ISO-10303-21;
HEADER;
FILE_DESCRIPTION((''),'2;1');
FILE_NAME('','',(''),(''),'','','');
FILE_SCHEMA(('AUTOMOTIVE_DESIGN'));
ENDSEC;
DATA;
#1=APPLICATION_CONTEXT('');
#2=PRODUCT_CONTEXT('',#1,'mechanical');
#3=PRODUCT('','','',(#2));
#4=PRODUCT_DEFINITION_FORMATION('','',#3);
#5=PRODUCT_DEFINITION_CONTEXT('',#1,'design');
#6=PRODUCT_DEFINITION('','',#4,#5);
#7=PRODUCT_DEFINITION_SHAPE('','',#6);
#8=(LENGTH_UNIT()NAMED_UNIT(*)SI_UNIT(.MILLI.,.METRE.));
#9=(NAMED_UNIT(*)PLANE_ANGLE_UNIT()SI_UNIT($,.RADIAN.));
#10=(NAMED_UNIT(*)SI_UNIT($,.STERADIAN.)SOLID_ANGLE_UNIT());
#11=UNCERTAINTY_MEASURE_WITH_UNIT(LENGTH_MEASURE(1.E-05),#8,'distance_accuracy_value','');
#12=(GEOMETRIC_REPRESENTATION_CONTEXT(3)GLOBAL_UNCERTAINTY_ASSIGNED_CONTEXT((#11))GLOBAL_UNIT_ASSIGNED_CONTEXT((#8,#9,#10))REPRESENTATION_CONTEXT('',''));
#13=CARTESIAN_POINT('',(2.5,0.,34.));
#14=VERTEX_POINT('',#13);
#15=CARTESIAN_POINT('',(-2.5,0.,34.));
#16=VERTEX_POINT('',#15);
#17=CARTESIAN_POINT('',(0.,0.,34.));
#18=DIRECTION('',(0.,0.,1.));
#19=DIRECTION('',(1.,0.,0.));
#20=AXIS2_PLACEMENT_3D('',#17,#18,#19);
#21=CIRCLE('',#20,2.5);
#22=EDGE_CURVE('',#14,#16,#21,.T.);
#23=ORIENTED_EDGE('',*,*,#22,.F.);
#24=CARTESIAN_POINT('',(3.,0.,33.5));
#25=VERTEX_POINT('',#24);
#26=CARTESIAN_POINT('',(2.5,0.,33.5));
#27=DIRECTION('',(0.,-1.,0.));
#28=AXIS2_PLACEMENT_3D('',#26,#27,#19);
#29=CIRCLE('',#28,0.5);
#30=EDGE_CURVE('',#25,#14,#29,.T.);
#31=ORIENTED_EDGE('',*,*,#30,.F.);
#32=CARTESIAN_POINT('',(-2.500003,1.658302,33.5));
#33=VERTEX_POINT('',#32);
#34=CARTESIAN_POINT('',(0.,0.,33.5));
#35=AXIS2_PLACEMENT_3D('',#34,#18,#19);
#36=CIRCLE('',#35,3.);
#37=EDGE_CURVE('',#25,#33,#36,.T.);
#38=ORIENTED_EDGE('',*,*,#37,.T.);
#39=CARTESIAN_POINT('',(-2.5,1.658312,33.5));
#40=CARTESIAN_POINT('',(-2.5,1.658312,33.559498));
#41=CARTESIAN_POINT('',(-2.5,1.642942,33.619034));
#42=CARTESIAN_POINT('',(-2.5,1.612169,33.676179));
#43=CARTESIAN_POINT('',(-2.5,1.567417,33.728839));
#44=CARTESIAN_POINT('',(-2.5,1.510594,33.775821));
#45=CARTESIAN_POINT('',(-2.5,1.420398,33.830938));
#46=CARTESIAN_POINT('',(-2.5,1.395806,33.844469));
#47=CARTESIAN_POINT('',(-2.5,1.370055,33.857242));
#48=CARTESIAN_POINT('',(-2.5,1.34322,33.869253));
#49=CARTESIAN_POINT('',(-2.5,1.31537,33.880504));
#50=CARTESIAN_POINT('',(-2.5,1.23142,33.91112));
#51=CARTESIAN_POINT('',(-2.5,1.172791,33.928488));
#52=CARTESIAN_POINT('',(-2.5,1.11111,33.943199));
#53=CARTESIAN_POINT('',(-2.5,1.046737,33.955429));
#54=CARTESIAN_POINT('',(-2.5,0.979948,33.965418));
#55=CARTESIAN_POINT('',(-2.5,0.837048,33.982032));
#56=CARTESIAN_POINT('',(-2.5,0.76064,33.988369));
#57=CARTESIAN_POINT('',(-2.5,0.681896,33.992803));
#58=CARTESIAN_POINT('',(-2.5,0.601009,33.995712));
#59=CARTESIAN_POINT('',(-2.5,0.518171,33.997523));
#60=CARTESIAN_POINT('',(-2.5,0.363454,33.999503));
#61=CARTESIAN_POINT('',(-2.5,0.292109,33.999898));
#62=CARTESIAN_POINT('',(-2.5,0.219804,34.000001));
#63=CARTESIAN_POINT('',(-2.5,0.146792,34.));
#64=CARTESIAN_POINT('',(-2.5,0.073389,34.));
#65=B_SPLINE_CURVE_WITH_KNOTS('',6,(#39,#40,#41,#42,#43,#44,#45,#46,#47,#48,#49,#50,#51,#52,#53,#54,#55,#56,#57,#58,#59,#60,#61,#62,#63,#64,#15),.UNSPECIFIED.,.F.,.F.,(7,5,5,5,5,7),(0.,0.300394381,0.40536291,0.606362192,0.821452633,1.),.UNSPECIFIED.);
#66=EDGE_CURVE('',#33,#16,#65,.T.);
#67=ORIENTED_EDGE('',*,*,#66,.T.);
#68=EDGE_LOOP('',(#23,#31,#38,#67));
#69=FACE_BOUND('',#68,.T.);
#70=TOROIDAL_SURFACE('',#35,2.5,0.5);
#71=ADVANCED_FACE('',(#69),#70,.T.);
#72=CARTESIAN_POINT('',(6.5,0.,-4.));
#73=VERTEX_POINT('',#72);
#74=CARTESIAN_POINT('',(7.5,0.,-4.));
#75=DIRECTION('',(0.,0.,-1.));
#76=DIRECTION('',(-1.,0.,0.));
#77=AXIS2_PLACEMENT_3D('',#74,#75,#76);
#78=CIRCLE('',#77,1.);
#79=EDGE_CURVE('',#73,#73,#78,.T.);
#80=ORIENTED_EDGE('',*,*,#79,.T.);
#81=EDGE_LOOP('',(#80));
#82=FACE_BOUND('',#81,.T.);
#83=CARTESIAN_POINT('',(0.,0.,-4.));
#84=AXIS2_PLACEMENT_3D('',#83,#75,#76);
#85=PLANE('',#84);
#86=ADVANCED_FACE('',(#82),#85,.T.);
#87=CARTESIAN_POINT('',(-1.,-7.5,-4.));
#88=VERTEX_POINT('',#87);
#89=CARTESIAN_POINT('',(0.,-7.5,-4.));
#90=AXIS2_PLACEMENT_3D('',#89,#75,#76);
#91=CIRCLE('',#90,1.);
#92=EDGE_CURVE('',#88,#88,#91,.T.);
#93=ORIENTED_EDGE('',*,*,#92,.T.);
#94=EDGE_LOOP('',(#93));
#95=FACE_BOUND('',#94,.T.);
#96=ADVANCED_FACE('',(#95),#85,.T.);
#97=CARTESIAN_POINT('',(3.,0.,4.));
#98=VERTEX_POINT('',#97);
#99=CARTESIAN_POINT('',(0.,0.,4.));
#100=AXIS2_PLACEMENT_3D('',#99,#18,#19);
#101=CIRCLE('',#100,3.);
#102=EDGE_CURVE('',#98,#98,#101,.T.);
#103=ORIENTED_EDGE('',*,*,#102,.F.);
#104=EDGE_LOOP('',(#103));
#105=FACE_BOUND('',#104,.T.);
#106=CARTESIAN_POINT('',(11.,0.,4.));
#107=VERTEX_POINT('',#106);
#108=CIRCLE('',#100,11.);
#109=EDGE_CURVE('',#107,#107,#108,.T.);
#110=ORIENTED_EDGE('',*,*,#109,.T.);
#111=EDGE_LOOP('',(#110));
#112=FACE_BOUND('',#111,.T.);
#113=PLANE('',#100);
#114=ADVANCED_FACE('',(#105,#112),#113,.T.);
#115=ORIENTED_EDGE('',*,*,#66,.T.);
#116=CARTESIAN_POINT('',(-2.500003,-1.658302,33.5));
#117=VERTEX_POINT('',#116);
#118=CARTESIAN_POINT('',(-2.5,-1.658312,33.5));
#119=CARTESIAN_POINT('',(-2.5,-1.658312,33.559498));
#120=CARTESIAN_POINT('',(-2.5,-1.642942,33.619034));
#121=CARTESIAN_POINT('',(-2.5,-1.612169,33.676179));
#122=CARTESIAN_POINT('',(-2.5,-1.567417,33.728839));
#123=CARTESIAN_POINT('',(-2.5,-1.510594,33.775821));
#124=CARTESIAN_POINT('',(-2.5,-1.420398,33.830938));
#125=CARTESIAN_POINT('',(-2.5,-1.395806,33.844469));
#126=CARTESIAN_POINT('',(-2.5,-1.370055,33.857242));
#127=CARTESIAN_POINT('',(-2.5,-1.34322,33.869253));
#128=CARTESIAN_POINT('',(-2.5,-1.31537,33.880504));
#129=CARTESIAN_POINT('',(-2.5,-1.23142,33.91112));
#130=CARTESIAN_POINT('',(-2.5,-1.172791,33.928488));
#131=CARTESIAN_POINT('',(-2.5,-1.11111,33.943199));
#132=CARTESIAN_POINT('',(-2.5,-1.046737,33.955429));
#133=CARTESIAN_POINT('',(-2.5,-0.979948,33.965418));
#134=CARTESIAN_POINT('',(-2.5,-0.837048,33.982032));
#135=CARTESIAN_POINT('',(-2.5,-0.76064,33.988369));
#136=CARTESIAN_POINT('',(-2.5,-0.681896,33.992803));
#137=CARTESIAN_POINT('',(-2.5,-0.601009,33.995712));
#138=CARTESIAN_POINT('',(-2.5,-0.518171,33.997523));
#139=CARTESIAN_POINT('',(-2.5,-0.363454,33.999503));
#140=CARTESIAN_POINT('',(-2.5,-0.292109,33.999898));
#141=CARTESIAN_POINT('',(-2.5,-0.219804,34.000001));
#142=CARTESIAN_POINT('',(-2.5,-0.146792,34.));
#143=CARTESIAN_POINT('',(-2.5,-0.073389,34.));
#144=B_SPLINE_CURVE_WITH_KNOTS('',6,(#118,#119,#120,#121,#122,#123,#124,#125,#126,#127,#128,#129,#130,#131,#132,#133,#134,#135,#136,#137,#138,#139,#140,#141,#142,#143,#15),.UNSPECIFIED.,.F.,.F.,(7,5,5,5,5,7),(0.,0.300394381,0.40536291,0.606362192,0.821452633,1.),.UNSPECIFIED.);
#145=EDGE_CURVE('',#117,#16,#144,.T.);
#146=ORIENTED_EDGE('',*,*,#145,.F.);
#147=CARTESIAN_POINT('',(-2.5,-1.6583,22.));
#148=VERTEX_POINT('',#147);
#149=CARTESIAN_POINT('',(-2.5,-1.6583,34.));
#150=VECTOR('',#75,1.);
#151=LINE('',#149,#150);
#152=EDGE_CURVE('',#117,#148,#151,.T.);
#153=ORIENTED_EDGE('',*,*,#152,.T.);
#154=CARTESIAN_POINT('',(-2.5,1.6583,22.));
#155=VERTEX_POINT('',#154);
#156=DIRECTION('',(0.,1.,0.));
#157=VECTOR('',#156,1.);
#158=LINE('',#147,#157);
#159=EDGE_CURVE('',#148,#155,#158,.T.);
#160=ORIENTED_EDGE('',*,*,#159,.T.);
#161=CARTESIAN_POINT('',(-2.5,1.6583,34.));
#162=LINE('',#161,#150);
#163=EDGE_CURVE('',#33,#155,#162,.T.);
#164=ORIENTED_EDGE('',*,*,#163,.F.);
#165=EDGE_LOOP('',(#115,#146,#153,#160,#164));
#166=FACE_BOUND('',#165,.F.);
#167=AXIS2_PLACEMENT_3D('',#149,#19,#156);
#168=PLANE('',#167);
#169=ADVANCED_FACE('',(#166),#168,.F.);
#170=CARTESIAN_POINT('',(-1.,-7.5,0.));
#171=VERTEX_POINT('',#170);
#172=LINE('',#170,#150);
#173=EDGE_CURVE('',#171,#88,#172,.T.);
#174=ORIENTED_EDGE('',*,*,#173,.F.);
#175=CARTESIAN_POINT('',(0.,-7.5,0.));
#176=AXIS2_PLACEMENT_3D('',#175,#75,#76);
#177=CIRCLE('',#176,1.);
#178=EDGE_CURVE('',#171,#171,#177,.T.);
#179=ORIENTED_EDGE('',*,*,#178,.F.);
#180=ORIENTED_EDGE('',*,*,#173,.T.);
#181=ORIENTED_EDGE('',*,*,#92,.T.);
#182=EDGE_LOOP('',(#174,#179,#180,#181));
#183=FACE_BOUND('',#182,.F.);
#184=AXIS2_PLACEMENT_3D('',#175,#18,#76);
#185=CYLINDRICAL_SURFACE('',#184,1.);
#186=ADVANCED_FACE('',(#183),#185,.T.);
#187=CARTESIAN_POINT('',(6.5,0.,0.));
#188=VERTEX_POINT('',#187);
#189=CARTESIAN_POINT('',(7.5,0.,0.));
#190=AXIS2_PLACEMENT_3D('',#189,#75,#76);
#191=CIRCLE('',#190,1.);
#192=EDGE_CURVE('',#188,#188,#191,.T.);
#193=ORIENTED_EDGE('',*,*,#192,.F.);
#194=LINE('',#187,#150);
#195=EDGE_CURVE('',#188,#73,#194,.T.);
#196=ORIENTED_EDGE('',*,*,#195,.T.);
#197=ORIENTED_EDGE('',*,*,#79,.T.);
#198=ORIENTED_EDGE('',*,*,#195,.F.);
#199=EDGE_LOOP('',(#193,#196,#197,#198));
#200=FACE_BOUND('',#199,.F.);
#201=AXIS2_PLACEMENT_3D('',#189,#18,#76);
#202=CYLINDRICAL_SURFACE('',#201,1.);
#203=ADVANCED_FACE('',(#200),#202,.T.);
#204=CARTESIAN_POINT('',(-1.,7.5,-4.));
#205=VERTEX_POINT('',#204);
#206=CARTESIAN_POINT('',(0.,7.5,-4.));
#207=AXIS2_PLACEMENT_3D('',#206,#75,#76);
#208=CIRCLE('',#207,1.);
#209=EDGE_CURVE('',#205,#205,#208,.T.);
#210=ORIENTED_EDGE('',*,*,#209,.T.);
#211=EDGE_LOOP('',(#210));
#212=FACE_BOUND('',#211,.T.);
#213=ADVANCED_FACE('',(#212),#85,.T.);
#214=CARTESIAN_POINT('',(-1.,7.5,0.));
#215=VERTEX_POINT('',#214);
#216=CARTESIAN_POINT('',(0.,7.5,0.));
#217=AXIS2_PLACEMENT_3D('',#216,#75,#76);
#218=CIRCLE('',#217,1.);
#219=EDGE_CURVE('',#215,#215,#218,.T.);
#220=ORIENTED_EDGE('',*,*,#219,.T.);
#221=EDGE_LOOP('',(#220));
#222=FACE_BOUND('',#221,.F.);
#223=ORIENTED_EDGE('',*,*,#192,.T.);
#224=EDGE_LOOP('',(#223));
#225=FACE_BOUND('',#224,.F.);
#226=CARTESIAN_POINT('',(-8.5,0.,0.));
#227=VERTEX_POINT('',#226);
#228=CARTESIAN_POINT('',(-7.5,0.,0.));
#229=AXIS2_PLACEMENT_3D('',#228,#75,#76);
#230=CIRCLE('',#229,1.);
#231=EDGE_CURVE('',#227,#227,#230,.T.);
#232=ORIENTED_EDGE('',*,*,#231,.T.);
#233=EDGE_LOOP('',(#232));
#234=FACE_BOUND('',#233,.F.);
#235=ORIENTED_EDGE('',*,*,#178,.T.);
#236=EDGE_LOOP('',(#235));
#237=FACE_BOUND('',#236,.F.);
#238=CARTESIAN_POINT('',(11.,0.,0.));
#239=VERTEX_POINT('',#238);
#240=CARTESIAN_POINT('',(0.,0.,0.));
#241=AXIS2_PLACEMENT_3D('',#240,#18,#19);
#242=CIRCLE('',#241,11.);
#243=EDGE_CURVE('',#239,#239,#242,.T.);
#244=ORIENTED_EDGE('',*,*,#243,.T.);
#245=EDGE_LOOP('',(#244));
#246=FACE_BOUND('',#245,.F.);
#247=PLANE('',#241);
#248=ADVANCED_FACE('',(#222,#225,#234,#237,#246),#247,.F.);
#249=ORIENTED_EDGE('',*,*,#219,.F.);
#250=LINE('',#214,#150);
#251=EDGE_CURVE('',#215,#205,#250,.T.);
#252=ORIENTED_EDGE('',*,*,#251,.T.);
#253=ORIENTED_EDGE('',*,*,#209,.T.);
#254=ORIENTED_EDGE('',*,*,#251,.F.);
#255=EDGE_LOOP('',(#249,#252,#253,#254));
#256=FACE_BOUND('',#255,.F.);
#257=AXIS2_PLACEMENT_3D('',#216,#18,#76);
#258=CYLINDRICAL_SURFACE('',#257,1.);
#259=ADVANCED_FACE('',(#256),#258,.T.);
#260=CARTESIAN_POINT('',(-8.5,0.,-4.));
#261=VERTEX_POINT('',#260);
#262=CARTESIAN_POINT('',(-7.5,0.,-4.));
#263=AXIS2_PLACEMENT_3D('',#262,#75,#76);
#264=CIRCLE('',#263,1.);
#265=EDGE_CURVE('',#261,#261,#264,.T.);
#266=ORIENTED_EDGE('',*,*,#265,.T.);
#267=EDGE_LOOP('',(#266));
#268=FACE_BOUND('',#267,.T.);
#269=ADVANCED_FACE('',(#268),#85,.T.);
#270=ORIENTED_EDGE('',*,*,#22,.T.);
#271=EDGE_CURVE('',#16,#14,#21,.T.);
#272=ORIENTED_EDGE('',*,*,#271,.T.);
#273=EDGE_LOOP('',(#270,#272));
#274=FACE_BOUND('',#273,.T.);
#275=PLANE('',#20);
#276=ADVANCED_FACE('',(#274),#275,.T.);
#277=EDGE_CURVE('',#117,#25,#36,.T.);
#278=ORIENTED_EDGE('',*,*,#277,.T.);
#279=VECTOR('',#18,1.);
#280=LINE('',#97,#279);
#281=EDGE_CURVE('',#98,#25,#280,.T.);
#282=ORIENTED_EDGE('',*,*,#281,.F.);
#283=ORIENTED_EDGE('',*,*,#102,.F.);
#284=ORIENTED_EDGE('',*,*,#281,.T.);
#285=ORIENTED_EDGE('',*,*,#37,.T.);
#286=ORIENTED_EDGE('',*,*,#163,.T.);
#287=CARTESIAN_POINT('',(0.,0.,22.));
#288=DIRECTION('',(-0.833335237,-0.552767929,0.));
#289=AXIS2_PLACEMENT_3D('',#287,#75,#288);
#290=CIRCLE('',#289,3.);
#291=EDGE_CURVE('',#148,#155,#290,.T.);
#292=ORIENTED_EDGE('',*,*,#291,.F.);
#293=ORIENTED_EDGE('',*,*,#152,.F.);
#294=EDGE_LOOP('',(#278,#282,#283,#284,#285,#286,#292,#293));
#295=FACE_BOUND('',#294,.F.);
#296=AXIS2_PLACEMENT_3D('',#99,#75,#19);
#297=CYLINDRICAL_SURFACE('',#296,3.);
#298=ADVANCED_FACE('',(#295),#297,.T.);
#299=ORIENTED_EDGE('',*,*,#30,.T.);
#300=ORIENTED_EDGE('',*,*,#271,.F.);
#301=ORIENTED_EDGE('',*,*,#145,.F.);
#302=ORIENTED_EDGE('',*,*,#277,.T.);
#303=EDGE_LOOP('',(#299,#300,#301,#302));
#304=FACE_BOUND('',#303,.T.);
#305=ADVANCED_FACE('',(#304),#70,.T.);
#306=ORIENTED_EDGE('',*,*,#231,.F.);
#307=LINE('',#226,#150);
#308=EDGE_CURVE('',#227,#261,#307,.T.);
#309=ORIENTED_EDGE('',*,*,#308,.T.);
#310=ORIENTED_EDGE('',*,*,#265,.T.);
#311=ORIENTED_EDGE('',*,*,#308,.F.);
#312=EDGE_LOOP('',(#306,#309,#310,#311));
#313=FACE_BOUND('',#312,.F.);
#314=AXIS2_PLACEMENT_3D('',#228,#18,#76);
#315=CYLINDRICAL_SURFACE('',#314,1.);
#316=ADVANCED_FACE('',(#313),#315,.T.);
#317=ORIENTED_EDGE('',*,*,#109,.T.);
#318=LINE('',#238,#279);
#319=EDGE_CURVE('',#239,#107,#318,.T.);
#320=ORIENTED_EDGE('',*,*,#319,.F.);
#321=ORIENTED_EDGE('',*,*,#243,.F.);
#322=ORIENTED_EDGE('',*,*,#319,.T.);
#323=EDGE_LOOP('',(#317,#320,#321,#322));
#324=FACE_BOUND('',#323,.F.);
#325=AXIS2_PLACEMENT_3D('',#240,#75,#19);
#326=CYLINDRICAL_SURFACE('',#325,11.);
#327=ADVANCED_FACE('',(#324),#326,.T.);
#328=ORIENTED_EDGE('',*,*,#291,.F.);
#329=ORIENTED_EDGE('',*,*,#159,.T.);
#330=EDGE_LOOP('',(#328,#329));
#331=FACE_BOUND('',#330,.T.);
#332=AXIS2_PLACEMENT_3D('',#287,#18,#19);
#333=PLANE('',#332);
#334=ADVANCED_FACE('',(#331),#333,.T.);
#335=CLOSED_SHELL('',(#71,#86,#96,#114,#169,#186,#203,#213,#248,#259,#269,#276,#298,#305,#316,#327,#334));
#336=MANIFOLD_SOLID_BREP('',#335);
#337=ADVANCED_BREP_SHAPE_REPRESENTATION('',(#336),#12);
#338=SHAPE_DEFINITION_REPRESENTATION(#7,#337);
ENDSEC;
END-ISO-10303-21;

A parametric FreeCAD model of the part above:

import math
import FreeCAD as App
import Part
import Sketcher


def edges_at(feature, points):
    """Names of the edges that pass closest to the given points."""
    edges = feature.Shape.Edges
    near = lambda p: min(range(len(edges)), key=lambda i: edges[i].distToShape(Part.Vertex(*p))[0])
    return sorted({f"Edge{near(p) + 1}" for p in points})

doc = App.newDocument("Part")
body = doc.addObject("PartDesign::Body", "Body")

# Sketch on XY plane
sketch1 = body.newObject("Sketcher::SketchObject", "Sketch")
sketch1.AttachmentSupport = (doc.getObject("XY_Plane"), [""])
sketch1.MapMode = "FlatFace"
sketch1.addGeometry(Part.Circle(App.Vector(0, 0, 0), App.Vector(0, 0, 1), 11), False)
sketch1.addConstraint([
    Sketcher.Constraint("Coincident", 0, 3, -1, 1),
    Sketcher.Constraint("Diameter", 0, 22.0),
])
pad1 = body.newObject("PartDesign::Pad", "Pad")
pad1.Profile = sketch1
pad1.Length = 4

# Sketch on XY plane
sketch2 = body.newObject("Sketcher::SketchObject", "Sketch001")
sketch2.AttachmentSupport = (doc.getObject("XY_Plane"), [""])
sketch2.MapMode = "FlatFace"
sketch2.AttachmentOffset = App.Placement(App.Vector(0, 0, 4), App.Rotation())
sketch2.addGeometry(Part.Circle(App.Vector(0, 0, 0), App.Vector(0, 0, 1), 3), False)
sketch2.addConstraint([
    Sketcher.Constraint("Coincident", 0, 3, -1, 1),
    Sketcher.Constraint("Diameter", 0, 6.0),
])
pad2 = body.newObject("PartDesign::Pad", "Pad001")
pad2.Profile = sketch2
pad2.Length = 30

# Sketch on XY plane
sketch3 = body.newObject("Sketcher::SketchObject", "Sketch002")
sketch3.AttachmentSupport = (doc.getObject("XY_Plane"), [""])
sketch3.MapMode = "FlatFace"
sketch3.addGeometry([
    Part.Circle(App.Vector(0, 7.5, 0), App.Vector(0, 0, 1), 1),
    Part.Circle(App.Vector(7.5, 0, 0), App.Vector(0, 0, 1), 1),
    Part.Circle(App.Vector(0, -7.5, 0), App.Vector(0, 0, 1), 1),
    Part.Circle(App.Vector(-7.5, 0, 0), App.Vector(0, 0, 1), 1),
], False)
sketch3.addConstraint([
    Sketcher.Constraint("Equal", 0, 1),
    Sketcher.Constraint("Equal", 1, 2),
    Sketcher.Constraint("Equal", 2, 3),
    Sketcher.Constraint("Symmetric", 0, 3, 2, 3, -1, 1),
    Sketcher.Constraint("Symmetric", 1, 3, 3, 3, -1, 1),
    Sketcher.Constraint("PointOnObject", 0, 3, -2),
    Sketcher.Constraint("PointOnObject", 1, 3, -1),
    Sketcher.Constraint("Diameter", 0, 2.0),
    Sketcher.Constraint("DistanceY", -1, 1, 0, 3, 7.5),
    Sketcher.Constraint("DistanceX", -1, 1, 1, 3, 7.5),
])
pad3 = body.newObject("PartDesign::Pad", "Pad002")
pad3.Profile = sketch3
pad3.Length = 4
pad3.Reversed = True
doc.recompute()

fillet = body.newObject("PartDesign::Fillet", "Fillet")
fillet.Base = (pad3, edges_at(pad3, [(-3, 0, 34)]))
fillet.Radius = 0.5

# Sketch on XY plane
sketch4 = body.newObject("Sketcher::SketchObject", "Sketch003")
sketch4.AttachmentSupport = (doc.getObject("XY_Plane"), [""])
sketch4.MapMode = "FlatFace"
sketch4.AttachmentOffset = App.Placement(App.Vector(0, 0, 34), App.Rotation())
sketch4.addGeometry([
    Part.ArcOfCircle(Part.Circle(App.Vector(0, 0, 0), App.Vector(0, 0, 1), 3), math.radians(146), math.radians(214)),
    Part.LineSegment(App.Vector(-2.5, 1.7, 0), App.Vector(-2.5, -1.7, 0)),
], False)
sketch4.addConstraint([
    Sketcher.Constraint("Coincident", 0, 1, 1, 1),
    Sketcher.Constraint("Coincident", 1, 2, 0, 2),
    Sketcher.Constraint("Vertical", 1),
    Sketcher.Constraint("Coincident", 0, 3, -1, 1),
    Sketcher.Constraint("Radius", 0, 3.0),
    Sketcher.Constraint("DistanceX", 0, 1, -1, 1, 2.5),
])
pocket1 = body.newObject("PartDesign::Pocket", "Pocket")
pocket1.Profile = sketch4
pocket1.Length = 12

doc.recompute()
